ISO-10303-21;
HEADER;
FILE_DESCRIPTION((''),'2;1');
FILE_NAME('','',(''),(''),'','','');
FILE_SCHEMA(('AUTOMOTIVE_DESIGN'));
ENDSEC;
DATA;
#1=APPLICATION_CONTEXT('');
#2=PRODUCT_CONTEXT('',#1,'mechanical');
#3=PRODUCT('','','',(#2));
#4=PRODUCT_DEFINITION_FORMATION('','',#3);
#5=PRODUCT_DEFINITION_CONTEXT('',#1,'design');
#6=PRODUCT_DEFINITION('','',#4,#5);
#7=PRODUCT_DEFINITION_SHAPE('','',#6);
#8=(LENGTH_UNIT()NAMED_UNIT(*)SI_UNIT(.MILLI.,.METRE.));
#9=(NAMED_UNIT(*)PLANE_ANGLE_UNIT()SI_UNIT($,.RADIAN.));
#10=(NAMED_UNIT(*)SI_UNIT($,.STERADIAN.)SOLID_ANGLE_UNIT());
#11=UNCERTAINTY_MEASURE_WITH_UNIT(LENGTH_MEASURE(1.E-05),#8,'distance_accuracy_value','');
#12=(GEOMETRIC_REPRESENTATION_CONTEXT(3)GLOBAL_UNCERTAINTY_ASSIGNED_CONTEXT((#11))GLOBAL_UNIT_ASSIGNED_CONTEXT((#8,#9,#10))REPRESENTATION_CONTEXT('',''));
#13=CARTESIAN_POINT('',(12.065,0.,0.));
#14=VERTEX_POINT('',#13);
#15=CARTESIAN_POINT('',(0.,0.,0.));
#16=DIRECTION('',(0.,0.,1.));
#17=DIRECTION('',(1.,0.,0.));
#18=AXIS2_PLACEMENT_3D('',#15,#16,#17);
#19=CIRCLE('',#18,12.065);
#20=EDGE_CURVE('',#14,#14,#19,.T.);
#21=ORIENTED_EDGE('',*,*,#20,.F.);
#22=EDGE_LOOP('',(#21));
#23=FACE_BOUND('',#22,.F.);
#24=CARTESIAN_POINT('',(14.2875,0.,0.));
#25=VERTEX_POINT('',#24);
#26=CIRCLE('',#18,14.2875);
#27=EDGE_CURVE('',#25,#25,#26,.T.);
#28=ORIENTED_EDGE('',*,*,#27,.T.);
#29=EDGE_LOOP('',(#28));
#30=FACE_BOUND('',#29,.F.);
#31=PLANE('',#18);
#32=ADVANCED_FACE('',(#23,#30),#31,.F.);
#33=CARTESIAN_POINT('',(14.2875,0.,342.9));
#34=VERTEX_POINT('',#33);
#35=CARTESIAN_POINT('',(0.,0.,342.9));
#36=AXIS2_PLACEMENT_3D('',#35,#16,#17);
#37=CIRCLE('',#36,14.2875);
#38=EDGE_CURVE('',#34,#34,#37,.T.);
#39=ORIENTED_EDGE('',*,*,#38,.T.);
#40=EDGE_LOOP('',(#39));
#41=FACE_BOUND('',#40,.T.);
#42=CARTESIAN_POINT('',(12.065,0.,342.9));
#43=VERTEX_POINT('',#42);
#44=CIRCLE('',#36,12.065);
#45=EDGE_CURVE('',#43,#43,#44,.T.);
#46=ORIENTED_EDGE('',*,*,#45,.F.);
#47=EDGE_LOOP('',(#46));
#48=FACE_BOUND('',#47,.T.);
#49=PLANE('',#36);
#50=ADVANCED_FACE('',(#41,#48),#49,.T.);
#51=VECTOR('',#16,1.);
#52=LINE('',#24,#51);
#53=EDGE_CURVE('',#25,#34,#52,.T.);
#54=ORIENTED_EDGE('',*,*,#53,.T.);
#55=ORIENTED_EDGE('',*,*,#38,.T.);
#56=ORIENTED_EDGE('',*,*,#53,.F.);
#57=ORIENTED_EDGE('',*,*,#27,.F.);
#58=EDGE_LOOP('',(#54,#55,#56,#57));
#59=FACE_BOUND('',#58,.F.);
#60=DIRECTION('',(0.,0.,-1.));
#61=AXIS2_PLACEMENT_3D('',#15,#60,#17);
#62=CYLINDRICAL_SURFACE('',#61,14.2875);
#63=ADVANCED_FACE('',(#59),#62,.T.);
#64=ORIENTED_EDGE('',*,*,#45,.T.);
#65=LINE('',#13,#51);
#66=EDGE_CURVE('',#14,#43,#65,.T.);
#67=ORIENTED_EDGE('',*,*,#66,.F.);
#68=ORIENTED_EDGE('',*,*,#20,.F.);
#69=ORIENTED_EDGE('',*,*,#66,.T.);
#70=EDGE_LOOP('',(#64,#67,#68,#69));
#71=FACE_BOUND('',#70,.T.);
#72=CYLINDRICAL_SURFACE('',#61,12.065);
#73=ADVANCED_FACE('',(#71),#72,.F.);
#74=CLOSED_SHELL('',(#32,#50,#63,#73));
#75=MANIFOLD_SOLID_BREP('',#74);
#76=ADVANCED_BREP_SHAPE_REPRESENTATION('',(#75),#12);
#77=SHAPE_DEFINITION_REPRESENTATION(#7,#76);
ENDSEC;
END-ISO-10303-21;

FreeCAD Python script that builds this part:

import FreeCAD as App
import Part
import Sketcher

V = App.Vector
Q = App.Units.Quantity

doc = App.newDocument("Part")
body = doc.addObject("PartDesign::Body", "Body")

# Sketch on XY plane
sketch1 = body.newObject("Sketcher::SketchObject", "Sketch")
sketch1.AttachmentSupport = (doc.getObject("XY_Plane"), [""])
sketch1.MapMode = "FlatFace"
sketch1.addGeometry([
    Part.Circle(V(0, 0, 0), V(0, 0, 1), 14),
    Part.Circle(V(0, 0, 0), V(0, 0, 1), 12),
], False)
sketch1.addConstraint([
    Sketcher.Constraint("Coincident", 0, 3, -1, 1),
    Sketcher.Constraint("Coincident", 1, 3, -1, 1),
    Sketcher.Constraint("Diameter", 1, Q("0.95 in")),
    Sketcher.Constraint("Diameter", 0, Q("1.125 in")),
])
pad1 = body.newObject("PartDesign::Pad", "Pad")
pad1.Profile = sketch1
pad1.Length = Q("13.5 in")

doc.recompute()
